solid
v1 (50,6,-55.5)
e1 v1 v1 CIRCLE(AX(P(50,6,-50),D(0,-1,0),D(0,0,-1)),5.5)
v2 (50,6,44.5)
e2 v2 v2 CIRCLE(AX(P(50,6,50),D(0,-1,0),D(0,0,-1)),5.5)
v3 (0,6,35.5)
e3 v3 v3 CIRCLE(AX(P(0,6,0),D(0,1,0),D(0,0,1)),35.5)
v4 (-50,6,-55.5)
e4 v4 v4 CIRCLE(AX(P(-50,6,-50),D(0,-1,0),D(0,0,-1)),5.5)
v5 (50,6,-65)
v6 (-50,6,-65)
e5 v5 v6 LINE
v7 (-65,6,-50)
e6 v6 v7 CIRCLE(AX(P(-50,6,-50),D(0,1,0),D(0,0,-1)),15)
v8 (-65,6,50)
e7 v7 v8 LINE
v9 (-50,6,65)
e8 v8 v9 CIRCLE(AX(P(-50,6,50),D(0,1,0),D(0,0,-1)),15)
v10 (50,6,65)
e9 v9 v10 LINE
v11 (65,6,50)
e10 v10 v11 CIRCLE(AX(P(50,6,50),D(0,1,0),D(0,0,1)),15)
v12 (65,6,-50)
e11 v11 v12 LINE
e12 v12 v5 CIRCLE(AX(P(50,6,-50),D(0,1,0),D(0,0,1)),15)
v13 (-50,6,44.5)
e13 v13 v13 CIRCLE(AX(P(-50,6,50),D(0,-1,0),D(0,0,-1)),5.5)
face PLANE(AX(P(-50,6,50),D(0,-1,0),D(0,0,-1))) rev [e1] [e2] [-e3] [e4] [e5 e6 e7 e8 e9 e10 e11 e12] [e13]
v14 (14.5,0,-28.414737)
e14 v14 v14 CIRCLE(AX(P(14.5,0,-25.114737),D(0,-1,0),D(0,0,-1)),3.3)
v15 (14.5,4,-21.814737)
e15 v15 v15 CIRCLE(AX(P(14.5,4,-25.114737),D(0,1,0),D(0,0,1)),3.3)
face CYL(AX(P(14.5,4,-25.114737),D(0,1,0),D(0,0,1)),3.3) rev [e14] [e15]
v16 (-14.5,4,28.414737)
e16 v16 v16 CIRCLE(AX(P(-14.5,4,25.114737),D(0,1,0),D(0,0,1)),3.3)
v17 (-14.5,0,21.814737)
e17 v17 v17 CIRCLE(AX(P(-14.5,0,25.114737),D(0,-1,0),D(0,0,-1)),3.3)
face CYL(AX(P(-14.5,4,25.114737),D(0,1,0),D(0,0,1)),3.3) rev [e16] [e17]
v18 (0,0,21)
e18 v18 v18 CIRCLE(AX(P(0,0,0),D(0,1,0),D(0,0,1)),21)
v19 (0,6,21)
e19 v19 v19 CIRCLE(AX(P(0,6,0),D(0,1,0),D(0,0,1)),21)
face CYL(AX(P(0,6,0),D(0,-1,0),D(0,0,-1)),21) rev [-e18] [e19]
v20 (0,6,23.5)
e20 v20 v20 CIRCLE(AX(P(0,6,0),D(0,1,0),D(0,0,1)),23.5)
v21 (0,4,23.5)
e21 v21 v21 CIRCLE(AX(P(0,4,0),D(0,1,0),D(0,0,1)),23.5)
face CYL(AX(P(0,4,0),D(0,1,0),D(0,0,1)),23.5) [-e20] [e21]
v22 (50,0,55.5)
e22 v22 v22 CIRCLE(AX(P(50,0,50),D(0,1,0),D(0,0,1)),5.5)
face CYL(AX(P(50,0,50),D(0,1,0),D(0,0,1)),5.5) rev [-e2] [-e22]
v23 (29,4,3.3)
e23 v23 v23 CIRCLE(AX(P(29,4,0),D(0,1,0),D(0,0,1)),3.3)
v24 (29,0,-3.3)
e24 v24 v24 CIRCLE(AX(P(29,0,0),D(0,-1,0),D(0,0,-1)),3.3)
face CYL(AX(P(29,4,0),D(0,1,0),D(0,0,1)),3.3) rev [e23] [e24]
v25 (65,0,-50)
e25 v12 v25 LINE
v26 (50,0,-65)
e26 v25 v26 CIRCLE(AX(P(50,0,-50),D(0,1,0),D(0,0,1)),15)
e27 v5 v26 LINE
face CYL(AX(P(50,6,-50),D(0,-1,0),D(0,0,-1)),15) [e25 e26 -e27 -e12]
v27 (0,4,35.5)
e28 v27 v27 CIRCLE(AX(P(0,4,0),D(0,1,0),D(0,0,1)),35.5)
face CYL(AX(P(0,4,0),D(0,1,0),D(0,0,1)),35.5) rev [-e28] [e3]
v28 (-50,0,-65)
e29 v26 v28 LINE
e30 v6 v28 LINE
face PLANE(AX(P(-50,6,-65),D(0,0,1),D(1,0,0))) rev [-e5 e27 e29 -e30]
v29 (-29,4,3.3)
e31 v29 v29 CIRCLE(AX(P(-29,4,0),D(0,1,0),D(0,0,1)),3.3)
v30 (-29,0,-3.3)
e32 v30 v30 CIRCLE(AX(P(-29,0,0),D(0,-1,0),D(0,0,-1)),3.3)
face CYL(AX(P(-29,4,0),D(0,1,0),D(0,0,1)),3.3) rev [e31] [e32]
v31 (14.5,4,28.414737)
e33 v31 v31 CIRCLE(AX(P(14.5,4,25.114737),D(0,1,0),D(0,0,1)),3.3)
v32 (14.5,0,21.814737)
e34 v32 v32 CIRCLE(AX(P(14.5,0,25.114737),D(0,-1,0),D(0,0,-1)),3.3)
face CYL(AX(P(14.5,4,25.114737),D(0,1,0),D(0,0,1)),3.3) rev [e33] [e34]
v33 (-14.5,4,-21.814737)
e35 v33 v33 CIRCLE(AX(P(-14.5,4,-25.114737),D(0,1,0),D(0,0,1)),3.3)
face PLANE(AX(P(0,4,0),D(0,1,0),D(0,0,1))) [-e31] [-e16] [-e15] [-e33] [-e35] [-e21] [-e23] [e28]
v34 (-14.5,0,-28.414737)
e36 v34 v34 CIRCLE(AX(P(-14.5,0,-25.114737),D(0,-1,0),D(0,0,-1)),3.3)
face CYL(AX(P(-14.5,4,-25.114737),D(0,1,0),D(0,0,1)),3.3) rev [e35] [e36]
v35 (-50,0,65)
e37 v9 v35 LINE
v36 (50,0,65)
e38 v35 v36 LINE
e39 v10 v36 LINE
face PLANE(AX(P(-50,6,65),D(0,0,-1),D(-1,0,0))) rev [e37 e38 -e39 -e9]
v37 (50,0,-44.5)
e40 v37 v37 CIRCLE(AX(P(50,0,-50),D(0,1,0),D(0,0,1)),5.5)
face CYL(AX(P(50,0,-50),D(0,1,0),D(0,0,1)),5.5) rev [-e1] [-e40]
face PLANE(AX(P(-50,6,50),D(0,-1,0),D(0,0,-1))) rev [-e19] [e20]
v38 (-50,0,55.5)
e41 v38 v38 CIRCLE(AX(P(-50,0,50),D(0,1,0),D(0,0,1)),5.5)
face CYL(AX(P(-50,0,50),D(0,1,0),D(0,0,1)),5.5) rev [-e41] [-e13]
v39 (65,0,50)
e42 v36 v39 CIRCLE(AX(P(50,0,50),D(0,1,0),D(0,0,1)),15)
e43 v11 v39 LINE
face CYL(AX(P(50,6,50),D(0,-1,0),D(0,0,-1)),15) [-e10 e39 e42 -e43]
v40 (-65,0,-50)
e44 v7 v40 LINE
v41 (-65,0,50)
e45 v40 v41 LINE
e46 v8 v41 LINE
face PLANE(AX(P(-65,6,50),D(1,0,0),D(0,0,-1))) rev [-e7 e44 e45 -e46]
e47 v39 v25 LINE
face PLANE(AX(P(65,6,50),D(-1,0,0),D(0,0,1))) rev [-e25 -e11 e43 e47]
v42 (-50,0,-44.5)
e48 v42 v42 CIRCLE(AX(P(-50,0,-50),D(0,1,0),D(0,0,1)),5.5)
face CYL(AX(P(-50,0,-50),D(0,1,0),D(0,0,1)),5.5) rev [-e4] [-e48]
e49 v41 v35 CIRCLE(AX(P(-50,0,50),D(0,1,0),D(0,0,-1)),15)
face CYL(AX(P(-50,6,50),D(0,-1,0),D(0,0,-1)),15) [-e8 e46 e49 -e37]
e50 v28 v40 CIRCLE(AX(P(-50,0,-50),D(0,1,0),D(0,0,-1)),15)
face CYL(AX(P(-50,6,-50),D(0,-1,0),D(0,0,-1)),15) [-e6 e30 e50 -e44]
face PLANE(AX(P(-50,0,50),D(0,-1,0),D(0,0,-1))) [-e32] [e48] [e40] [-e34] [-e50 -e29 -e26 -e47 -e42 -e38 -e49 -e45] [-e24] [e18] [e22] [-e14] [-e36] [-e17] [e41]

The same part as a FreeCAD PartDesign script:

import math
import FreeCAD as App
import Part
import Sketcher

V = App.Vector
Q = App.Units.Quantity

doc = App.newDocument("Part")
body = doc.addObject("PartDesign::Body", "Body")

# Sketch on XZ plane
sketch1 = doc.addObject("Sketcher::SketchObject", "Sketch")
body.addObject(sketch1)
sketch1.AttachmentSupport = (doc.XZ_Plane, [""])
sketch1.MapMode = "FlatFace"
sketch1.addGeometry(Part.LineSegment(V(-50, 65, 0), V(50, 65, 0)), False)
sketch1.addGeometry(Part.ArcOfCircle(Part.Circle(V(50, 50, 0), V(0, 0, 1), 15), math.radians(0), math.radians(90)), False)
sketch1.addGeometry(Part.LineSegment(V(65, 50, 0), V(65, -50, 0)), False)
sketch1.addGeometry(Part.ArcOfCircle(Part.Circle(V(50, -50, 0), V(0, 0, 1), 15), math.radians(-90), math.radians(0)), False)
sketch1.addGeometry(Part.LineSegment(V(50, -65, 0), V(-50, -65, 0)), False)
sketch1.addGeometry(Part.ArcOfCircle(Part.Circle(V(-50, -50, 0), V(0, 0, 1), 15), math.radians(180), math.radians(270)), False)
sketch1.addGeometry(Part.LineSegment(V(-65, -50, 0), V(-65, 50, 0)), False)
sketch1.addGeometry(Part.ArcOfCircle(Part.Circle(V(-50, 50, 0), V(0, 0, 1), 15), math.radians(90), math.radians(180)), False)
sketch1.addGeometry(Part.Circle(V(0, 0, 0), V(0, 0, 1), 21), False)
sketch1.addConstraint(Sketcher.Constraint("Tangent", 0, 2, 1, 2))
sketch1.addConstraint(Sketcher.Constraint("Tangent", 1, 1, 2, 1))
sketch1.addConstraint(Sketcher.Constraint("Tangent", 2, 2, 3, 2))
sketch1.addConstraint(Sketcher.Constraint("Tangent", 3, 1, 4, 1))
sketch1.addConstraint(Sketcher.Constraint("Tangent", 4, 2, 5, 2))
sketch1.addConstraint(Sketcher.Constraint("Tangent", 5, 1, 6, 1))
sketch1.addConstraint(Sketcher.Constraint("Tangent", 6, 2, 7, 2))
sketch1.addConstraint(Sketcher.Constraint("Tangent", 7, 1, 0, 1))
sketch1.addConstraint(Sketcher.Constraint("Horizontal", 0))
sketch1.addConstraint(Sketcher.Constraint("Vertical", 2))
sketch1.addConstraint(Sketcher.Constraint("Horizontal", 4))
sketch1.addConstraint(Sketcher.Constraint("Vertical", 6))
sketch1.addConstraint(Sketcher.Constraint("Coincident", 8, 3, -1, 1))
sketch1.addConstraint(Sketcher.Constraint("Equal", 1, 3))
sketch1.addConstraint(Sketcher.Constraint("Equal", 3, 5))
sketch1.addConstraint(Sketcher.Constraint("Equal", 5, 7))
sketch1.addConstraint(Sketcher.Constraint("Symmetric", 1, 3, 5, 3, -1, 1))
sketch1.addConstraint(Sketcher.Constraint("Equal", 4, 2))
sketch1.addConstraint(Sketcher.Constraint("Diameter", 8, Q("42 mm")))
sketch1.addConstraint(Sketcher.Constraint("Radius", 1, Q("15 mm")))
sketch1.addConstraint(Sketcher.Constraint("DistanceX", 0, 1, 0, 2, Q("100 mm")))
pad1 = doc.addObject("PartDesign::Pad", "Pad")
body.addObject(pad1)
pad1.Profile = sketch1
pad1.Length = 6
pad1.Reversed = True

# Sketch on XZ plane
sketch2 = doc.addObject("Sketcher::SketchObject", "Sketch001")
body.addObject(sketch2)
sketch2.AttachmentSupport = (doc.XZ_Plane, [""])
sketch2.MapMode = "FlatFace"
sketch2.AttachmentOffset = App.Placement(V(0, 0, -6), App.Rotation())
sketch2.addGeometry(Part.Circle(V(0, 0, 0), V(0, 0, 1), 35.5), False)
sketch2.addGeometry(Part.Circle(V(0, 0, 0), V(0, 0, 1), 23.5), False)
sketch2.addConstraint(Sketcher.Constraint("Coincident", 0, 3, -1, 1))
sketch2.addConstraint(Sketcher.Constraint("Coincident", 1, 3, -1, 1))
sketch2.addConstraint(Sketcher.Constraint("Diameter", 0, Q("71 mm")))
sketch2.addConstraint(Sketcher.Constraint("Diameter", 1, Q("47 mm")))
pocket1 = doc.addObject("PartDesign::Pocket", "Pocket")
body.addObject(pocket1)
pocket1.Profile = sketch2
pocket1.Length = 2
pocket1.Reversed = True

# Sketch on XZ plane
sketch3 = doc.addObject("Sketcher::SketchObject", "Sketch002")
body.addObject(sketch3)
sketch3.AttachmentSupport = (doc.XZ_Plane, [""])
sketch3.MapMode = "FlatFace"
sketch3.AttachmentOffset = App.Placement(V(0, 0, -6), App.Rotation())
sketch3.addGeometry(Part.Circle(V(-50, -50, 0), V(0, 0, 1), 5.5), False)
sketch3.addGeometry(Part.Circle(V(50, -50, 0), V(0, 0, 1), 5.5), False)
sketch3.addGeometry(Part.Circle(V(50, 50, 0), V(0, 0, 1), 5.5), False)
sketch3.addGeometry(Part.Circle(V(-50, 50, 0), V(0, 0, 1), 5.5), False)
sketch3.addConstraint(Sketcher.Constraint("Equal", 0, 1))
sketch3.addConstraint(Sketcher.Constraint("Equal", 1, 2))
sketch3.addConstraint(Sketcher.Constraint("Equal", 2, 3))
sketch3.addConstraint(Sketcher.Constraint("Symmetric", 0, 3, 2, 3, -1, 1))
sketch3.addConstraint(Sketcher.Constraint("Symmetric", 1, 3, 3, 3, -1, 1))
sketch3.addConstraint(Sketcher.Constraint("Symmetric", 0, 3, 1, 3, -2))
sketch3.addConstraint(Sketcher.Constraint("Diameter", 0, Q("11 mm")))
sketch3.addConstraint(Sketcher.Constraint("DistanceX", 0, 3, -1, 1, Q("50 mm")))
sketch3.addConstraint(Sketcher.Constraint("DistanceY", 0, 3, -1, 1, Q("50 mm")))
pocket2 = doc.addObject("PartDesign::Pocket", "Pocket001")
body.addObject(pocket2)
pocket2.Profile = sketch3
pocket2.Type = "ThroughAll"
pocket2.Midplane = True

# Sketch on XZ plane
sketch4 = doc.addObject("Sketcher::SketchObject", "Sketch003")
body.addObject(sketch4)
sketch4.AttachmentSupport = (doc.XZ_Plane, [""])
sketch4.MapMode = "FlatFace"
sketch4.AttachmentOffset = App.Placement(V(0, 0, -4), App.Rotation())
sketch4.addGeometry(Part.Circle(V(-29, 0, 0), V(0, 0, 1), 3.3), False)
sketch4.addConstraint(Sketcher.Constraint("PointOnObject", 0, 3, -1))
sketch4.addConstraint(Sketcher.Constraint("Diameter", 0, Q("6.6 mm")))
sketch4.addConstraint(Sketcher.Constraint("DistanceX", 0, 3, -1, 1, Q("29 mm")))
doc.recompute()
hole = doc.addObject("PartDesign::Hole", "Hole")
body.addObject(hole)
hole.Profile = sketch4
hole.ThreadType = "None"
hole.Diameter = 6.6
hole.DepthType = "Dimension"
hole.Depth = 4
hole.DrillPoint = "Flat"
hole.Reversed = True
doc.recompute()

polarpattern = doc.addObject("PartDesign::PolarPattern", "PolarPattern")
body.addObject(polarpattern)
polarpattern.Originals = [hole]
polarpattern.Axis = (doc.Y_Axis, [""])
polarpattern.Angle = 360
polarpattern.Occurrences = 6
body.Tip = polarpattern

doc.recompute()
